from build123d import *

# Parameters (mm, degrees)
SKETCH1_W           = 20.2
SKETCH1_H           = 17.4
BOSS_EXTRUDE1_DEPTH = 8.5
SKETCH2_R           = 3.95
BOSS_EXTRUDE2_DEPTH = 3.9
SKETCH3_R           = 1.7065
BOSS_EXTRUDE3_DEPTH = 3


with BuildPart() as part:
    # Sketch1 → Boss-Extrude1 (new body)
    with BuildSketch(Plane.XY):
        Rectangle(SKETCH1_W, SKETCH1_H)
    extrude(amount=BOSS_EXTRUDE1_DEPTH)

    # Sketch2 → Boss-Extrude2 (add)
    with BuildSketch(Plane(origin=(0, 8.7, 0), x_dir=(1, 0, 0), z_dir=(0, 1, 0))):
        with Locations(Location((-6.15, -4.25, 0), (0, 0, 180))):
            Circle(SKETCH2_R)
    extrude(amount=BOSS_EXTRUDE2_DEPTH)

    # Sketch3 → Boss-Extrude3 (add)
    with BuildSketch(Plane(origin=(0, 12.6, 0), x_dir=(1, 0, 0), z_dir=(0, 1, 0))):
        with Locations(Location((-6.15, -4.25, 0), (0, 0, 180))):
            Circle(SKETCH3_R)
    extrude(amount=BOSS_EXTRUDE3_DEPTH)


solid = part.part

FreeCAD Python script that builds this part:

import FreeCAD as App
import Part
import Sketcher
from FreeCAD import Vector
Q = App.Units.Quantity

doc = App.newDocument("Part")
params = doc.addObject("Spreadsheet::Sheet", "Params")
for row, (alias, value) in enumerate([
    ("sketch1_width", "20.2 mm"),
    ("sketch1_height", "17.4 mm"),
    ("pad1_length", "8.5 mm"),
    ("sketch2_diameter", "7.9 mm"),
    ("pad2_length", "3.9 mm"),
    ("pad3_length", "3 mm"),
], start=1):
    params.set(f"A{row}", alias)
    params.set(f"B{row}", "=" + value)
    params.setAlias(f"B{row}", alias)

body = doc.addObject("PartDesign::Body", "Body")

# Sketch on XY plane
sketch1 = doc.addObject("Sketcher::SketchObject", "Sketch")
body.addObject(sketch1)
sketch1.AttachmentSupport = (doc.XY_Plane, [""])
sketch1.MapMode = "FlatFace"
sketch1.addGeometry(Part.LineSegment(Vector(-10.1, 8.7, 0), Vector(-10.1, -8.7, 0)), False)
sketch1.addGeometry(Part.LineSegment(Vector(-10.1, -8.7, 0), Vector(10.1, -8.7, 0)), False)
sketch1.addGeometry(Part.LineSegment(Vector(10.1, -8.7, 0), Vector(10.1, 8.7, 0)), False)
sketch1.addGeometry(Part.LineSegment(Vector(10.1, 8.7, 0), Vector(-10.1, 8.7, 0)), False)
sketch1.addConstraint(Sketcher.Constraint("Coincident", 0, 2, 1, 1))
sketch1.addConstraint(Sketcher.Constraint("Coincident", 1, 2, 2, 1))
sketch1.addConstraint(Sketcher.Constraint("Coincident", 2, 2, 3, 1))
sketch1.addConstraint(Sketcher.Constraint("Coincident", 3, 2, 0, 1))
sketch1.addConstraint(Sketcher.Constraint("Vertical", 0))
sketch1.addConstraint(Sketcher.Constraint("Horizontal", 1))
sketch1.addConstraint(Sketcher.Constraint("Vertical", 2))
sketch1.addConstraint(Sketcher.Constraint("Horizontal", 3))
sketch1.addConstraint(Sketcher.Constraint("Symmetric", 0, 2, 2, 2, -1, 1))
sketch1.addConstraint(Sketcher.Constraint("DistanceX", 1, 1, 1, 2, Q("20.2 mm")))
sketch1.addConstraint(Sketcher.Constraint("DistanceY", 0, 2, 0, 1, Q("17.4 mm")))
sketch1.setExpression("Constraints[9]", "Params.sketch1_width")
sketch1.setExpression("Constraints[10]", "Params.sketch1_height")
pad1 = doc.addObject("PartDesign::Pad", "Pad")
body.addObject(pad1)
pad1.Profile = sketch1
pad1.setExpression("Length", "Params.pad1_length")

# Sketch on XZ plane
sketch2 = doc.addObject("Sketcher::SketchObject", "Sketch001")
body.addObject(sketch2)
sketch2.AttachmentSupport = (doc.XZ_Plane, [""])
sketch2.MapMode = "FlatFace"
sketch2.AttachmentOffset = App.Placement(Vector(0, 0, -8.7), App.Rotation())
sketch2.addGeometry(Part.Circle(Vector(-6.15, 4.25, 0), Vector(0, 0, 1), 3.95), False)
sketch2.addConstraint(Sketcher.Constraint("Diameter", 0, Q("7.9 mm")))
sketch2.addConstraint(Sketcher.Constraint("DistanceX", 0, 3, -1, 1, Q("6.15 mm")))
sketch2.addConstraint(Sketcher.Constraint("DistanceY", -1, 1, 0, 3, Q("4.25 mm")))
sketch2.setExpression("Constraints[0]", "Params.sketch2_diameter")
pad2 = doc.addObject("PartDesign::Pad", "Pad001")
body.addObject(pad2)
pad2.Profile = sketch2
pad2.setExpression("Length", "Params.pad2_length")
pad2.Reversed = True

# Sketch on XZ plane
sketch3 = doc.addObject("Sketcher::SketchObject", "Sketch002")
body.addObject(sketch3)
sketch3.AttachmentSupport = (doc.XZ_Plane, [""])
sketch3.MapMode = "FlatFace"
sketch3.AttachmentOffset = App.Placement(Vector(0, 0, -12.6), App.Rotation())
sketch3.addGeometry(Part.Circle(Vector(-6.15, 4.25, 0), Vector(0, 0, 1), 1.7065), False)
sketch3.addConstraint(Sketcher.Constraint("Diameter", 0, Q("3.413 mm")))
sketch3.addConstraint(Sketcher.Constraint("DistanceX", 0, 3, -1, 1, Q("6.15 mm")))
sketch3.addConstraint(Sketcher.Constraint("DistanceY", -1, 1, 0, 3, Q("4.25 mm")))
pad3 = doc.addObject("PartDesign::Pad", "Pad002")
body.addObject(pad3)
pad3.Profile = sketch3
pad3.setExpression("Length", "Params.pad3_length")
pad3.Reversed = True

doc.recompute()
